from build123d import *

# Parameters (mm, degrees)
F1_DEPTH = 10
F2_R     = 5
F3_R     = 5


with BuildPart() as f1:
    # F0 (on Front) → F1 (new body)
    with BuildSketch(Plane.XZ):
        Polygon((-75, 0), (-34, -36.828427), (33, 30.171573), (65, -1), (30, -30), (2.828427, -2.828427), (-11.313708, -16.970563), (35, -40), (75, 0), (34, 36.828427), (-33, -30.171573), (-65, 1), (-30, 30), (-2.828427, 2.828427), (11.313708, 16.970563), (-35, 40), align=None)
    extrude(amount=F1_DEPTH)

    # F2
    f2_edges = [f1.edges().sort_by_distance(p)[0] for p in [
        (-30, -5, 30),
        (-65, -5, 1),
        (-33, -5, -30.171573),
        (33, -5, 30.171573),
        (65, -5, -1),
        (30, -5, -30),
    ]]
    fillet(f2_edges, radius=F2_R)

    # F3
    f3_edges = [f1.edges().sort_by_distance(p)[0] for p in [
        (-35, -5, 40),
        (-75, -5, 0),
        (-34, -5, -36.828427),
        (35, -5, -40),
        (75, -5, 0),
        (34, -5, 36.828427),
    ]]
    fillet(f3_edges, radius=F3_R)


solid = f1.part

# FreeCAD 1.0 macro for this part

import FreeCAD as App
import Part
import Sketcher
from FreeCAD import Vector
Q = App.Units.Quantity


def edges_at(feature, points):
    """Names of the edges that pass closest to the given points."""
    edges = feature.Shape.Edges
    near = lambda p: min(range(len(edges)), key=lambda i: edges[i].distToShape(Part.Vertex(*p))[0])
    return sorted({f"Edge{near(p) + 1}" for p in points})


def add_polygon(sketch, points):
    """Adds a closed chain of lines whose ends are joined by coincident constraints."""
    first, n = sketch.GeometryCount, len(points)
    for a, b in zip(points, points[1:] + points[:1]):
        sketch.addGeometry(Part.LineSegment(App.Vector(*a, 0), App.Vector(*b, 0)), False)
    for i in range(n):
        sketch.addConstraint(Sketcher.Constraint("Coincident", first + i, 2, first + (i + 1) % n, 1))

doc = App.newDocument("Part")
body = doc.addObject("PartDesign::Body", "Body")

sketch1 = body.newObject("Sketcher::SketchObject", "Sketch")
sketch1.AttachmentSupport = (doc.getObject("XZ_Plane"), [""])
sketch1.MapMode = "FlatFace"
add_polygon(sketch1, [(-75, 0), (-34, -37), (33, 30), (65, -1), (30, -30), (3, -3), (-11, -17), (35, -40), (75, 0), (34, 37), (-33, -30), (-65, 1), (-30, 30), (-3, 3), (11, 17), (-35, 40)])
sketch1.addConstraint(Sketcher.Constraint("Symmetric", 0, 2, 8, 2, -1, 1))
sketch1.addConstraint(Sketcher.Constraint("Symmetric", 1, 2, 9, 2, -1, 1))
sketch1.addConstraint(Sketcher.Constraint("Symmetric", 2, 2, 10, 2, -1, 1))
sketch1.addConstraint(Sketcher.Constraint("Symmetric", 3, 2, 11, 2, -1, 1))
sketch1.addConstraint(Sketcher.Constraint("Symmetric", 4, 2, 12, 2, -1, 1))
sketch1.addConstraint(Sketcher.Constraint("Symmetric", 5, 2, 13, 2, -1, 1))
sketch1.addConstraint(Sketcher.Constraint("Symmetric", 6, 2, 14, 2, -1, 1))
sketch1.addConstraint(Sketcher.Constraint("Symmetric", 7, 2, 15, 2, -1, 1))
sketch1.addConstraint(Sketcher.Constraint("PointOnObject", 7, 2, -1))
sketch1.addConstraint(Sketcher.Constraint("Perpendicular", 1, 4))
sketch1.addConstraint(Sketcher.Constraint("Perpendicular", 4, 5))
sketch1.addConstraint(Sketcher.Constraint("Parallel", 5, 7))
sketch1.addConstraint(Sketcher.Constraint("Angle", 1, Q("45 deg")))
sketch1.addConstraint(Sketcher.Constraint("Distance", 5, 20.0))
sketch1.addConstraint(Sketcher.Constraint("DistanceX", 0, 2, -1, 1, 34.0))
sketch1.addConstraint(Sketcher.Constraint("DistanceX", -1, 1, 1, 2, 33.0))
sketch1.addConstraint(Sketcher.Constraint("DistanceX", -1, 1, 2, 2, 65.0))
sketch1.addConstraint(Sketcher.Constraint("DistanceY", 2, 2, -1, 1, 1.0))
sketch1.addConstraint(Sketcher.Constraint("DistanceX", -1, 1, 3, 2, 30.0))
sketch1.addConstraint(Sketcher.Constraint("DistanceY", 3, 2, -1, 1, 30.0))
sketch1.addConstraint(Sketcher.Constraint("DistanceX", -1, 1, 6, 2, 35.0))
sketch1.addConstraint(Sketcher.Constraint("DistanceY", 6, 2, -1, 1, 40.0))
sketch1.addConstraint(Sketcher.Constraint("DistanceY", 4, 2, 1, 2, 33.0))
sketch1.addConstraint(Sketcher.Constraint("Distance", 2, 44.672888))
pad1 = body.newObject("PartDesign::Pad", "Pad")
pad1.Profile = sketch1
pad1.Length = 10
doc.recompute()

fillet = body.newObject("PartDesign::Fillet", "Fillet")
fillet.Base = (pad1, edges_at(pad1, [
    (-30, -5, 30),
    (-65, -5, 1),
    (-33, -5, -30.172),
    (33, -5, 30.172),
    (65, -5, -1),
    (30, -5, -30),
]))
fillet.Radius = 5
doc.recompute()

fillet2 = body.newObject("PartDesign::Fillet", "Fillet001")
fillet2.Base = (fillet, edges_at(fillet, [
    (-35, -5, 40),
    (-75, -5, 0),
    (-34, -5, -36.828),
    (35, -5, -40),
    (75, -5, 0),
    (34, -5, 36.828),
]))
fillet2.Radius = 5

doc.recompute()
